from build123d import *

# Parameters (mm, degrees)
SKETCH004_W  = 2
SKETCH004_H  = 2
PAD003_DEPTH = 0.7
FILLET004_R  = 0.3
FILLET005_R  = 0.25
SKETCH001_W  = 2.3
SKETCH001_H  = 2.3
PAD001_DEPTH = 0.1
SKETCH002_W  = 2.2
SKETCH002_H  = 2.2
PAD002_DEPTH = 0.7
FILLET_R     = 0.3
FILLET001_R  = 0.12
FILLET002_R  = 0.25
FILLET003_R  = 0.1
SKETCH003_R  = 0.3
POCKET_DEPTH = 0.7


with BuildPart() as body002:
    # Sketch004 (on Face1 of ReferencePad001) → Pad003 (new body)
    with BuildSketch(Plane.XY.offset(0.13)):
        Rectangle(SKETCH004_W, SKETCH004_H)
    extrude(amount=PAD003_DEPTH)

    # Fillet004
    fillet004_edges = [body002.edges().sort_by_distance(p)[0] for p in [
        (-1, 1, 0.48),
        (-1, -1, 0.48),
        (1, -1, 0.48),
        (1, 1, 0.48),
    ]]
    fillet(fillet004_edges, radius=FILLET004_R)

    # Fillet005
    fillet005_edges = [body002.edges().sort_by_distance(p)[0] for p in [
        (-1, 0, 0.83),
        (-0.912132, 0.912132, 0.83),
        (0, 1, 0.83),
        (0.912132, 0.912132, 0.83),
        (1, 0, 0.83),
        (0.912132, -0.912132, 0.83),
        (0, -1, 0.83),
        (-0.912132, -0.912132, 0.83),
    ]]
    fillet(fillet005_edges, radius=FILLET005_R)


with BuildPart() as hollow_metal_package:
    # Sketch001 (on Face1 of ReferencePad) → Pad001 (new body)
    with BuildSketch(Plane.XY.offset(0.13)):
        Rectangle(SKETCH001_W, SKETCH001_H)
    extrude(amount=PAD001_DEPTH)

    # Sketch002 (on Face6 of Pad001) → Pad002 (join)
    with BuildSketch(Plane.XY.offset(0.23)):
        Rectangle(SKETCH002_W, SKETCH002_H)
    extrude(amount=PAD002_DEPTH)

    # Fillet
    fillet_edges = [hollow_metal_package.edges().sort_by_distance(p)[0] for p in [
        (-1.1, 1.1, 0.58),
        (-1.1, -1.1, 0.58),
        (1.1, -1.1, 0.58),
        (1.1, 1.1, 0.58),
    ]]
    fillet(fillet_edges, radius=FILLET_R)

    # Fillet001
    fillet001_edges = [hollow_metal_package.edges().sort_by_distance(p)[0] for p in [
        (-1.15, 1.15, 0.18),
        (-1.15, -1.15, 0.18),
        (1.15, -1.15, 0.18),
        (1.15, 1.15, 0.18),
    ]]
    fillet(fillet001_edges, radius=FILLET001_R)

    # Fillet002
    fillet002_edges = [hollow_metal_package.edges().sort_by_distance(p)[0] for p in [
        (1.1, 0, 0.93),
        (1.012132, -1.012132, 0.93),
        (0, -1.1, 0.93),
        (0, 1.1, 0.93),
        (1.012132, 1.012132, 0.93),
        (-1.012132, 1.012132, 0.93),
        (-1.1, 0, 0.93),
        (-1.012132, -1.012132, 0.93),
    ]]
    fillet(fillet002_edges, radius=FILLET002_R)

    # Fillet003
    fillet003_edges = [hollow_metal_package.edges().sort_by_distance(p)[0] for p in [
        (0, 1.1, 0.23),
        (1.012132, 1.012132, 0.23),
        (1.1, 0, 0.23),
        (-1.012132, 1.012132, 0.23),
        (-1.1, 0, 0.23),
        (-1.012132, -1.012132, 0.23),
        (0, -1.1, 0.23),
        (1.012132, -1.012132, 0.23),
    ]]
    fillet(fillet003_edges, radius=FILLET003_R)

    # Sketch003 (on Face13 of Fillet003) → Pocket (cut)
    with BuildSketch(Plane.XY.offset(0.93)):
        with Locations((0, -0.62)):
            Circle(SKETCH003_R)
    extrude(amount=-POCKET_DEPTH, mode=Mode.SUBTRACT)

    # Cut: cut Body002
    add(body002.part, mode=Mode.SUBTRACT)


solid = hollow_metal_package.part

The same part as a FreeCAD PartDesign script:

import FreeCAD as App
import Part
import Sketcher

V = App.Vector


def edges_at(feature, points):
    """Names of the edges that pass closest to the given points."""
    edges = feature.Shape.Edges
    near = lambda p: min(range(len(edges)), key=lambda i: edges[i].distToShape(Part.Vertex(*p))[0])
    return sorted({f"Edge{near(p) + 1}" for p in points})


def add_polygon(sketch, points):
    """Adds a closed chain of lines whose ends are joined by coincident constraints."""
    first, n = sketch.GeometryCount, len(points)
    for a, b in zip(points, points[1:] + points[:1]):
        sketch.addGeometry(Part.LineSegment(App.Vector(*a, 0), App.Vector(*b, 0)), False)
    for i in range(n):
        sketch.addConstraint(Sketcher.Constraint("Coincident", first + i, 2, first + (i + 1) % n, 1))

doc = App.newDocument("Part")
params = doc.addObject("Spreadsheet::Sheet", "Params")
for row, (alias, value) in enumerate([
    ("sketch1_width", "2 mm"),
    ("pad1_length", "0.7 mm"),
    ("fillet_radius", "0.3 mm"),
    ("fillet2_radius", "0.25 mm"),
    ("sketch2_width", "2.3 mm"),
    ("pad2_length", "0.1 mm"),
    ("sketch3_width", "2.2 mm"),
    ("pad3_length", "0.7 mm"),
    ("fillet3_radius", "0.3 mm"),
    ("fillet4_radius", "0.12 mm"),
    ("fillet5_radius", "0.25 mm"),
    ("fillet6_radius", "0.1 mm"),
    ("sketch4_diameter", "0.6 mm"),
    ("pocket1_length", "0.7 mm"),
], start=1):
    params.set(f"A{row}", alias)
    params.set(f"B{row}", "=" + value)
    params.setAlias(f"B{row}", alias)

body = doc.addObject("PartDesign::Body", "Body")

# Sketch on XY plane
sketch1 = doc.addObject("Sketcher::SketchObject", "Sketch")
body.addObject(sketch1)
sketch1.AttachmentSupport = (doc.XY_Plane, [""])
sketch1.MapMode = "FlatFace"
sketch1.AttachmentOffset = App.Placement(V(0, 0, 0.13), App.Rotation())
add_polygon(sketch1, [(-1, 1), (-1, -1), (1, -1), (1, 1)])  # lines 0-3
sketch1.addConstraint([
    Sketcher.Constraint("Vertical", 0),
    Sketcher.Constraint("Horizontal", 1),
    Sketcher.Constraint("Vertical", 2),
    Sketcher.Constraint("Horizontal", 3),
    Sketcher.Constraint("Symmetric", 0, 2, 2, 2, -1, 1),
    Sketcher.Constraint("Equal", 3, 0),
    Sketcher.Constraint("DistanceX", 1, 1, 1, 2, 2.0),
])
sketch1.setExpression("Constraints[10]", "Params.sketch1_width")
pad1 = doc.addObject("PartDesign::Pad", "Pad")
body.addObject(pad1)
pad1.Profile = sketch1
pad1.setExpression("Length", "Params.pad1_length")
doc.recompute()

fillet = doc.addObject("PartDesign::Fillet", "Fillet")
body.addObject(fillet)
fillet.Base = (pad1, edges_at(pad1, [
    (-1, 1, 0.48),
    (-1, -1, 0.48),
    (1, -1, 0.48),
    (1, 1, 0.48),
]))
fillet.setExpression("Radius", "Params.fillet_radius")
doc.recompute()

fillet2 = doc.addObject("PartDesign::Fillet", "Fillet001")
body.addObject(fillet2)
fillet2.Base = (fillet, edges_at(fillet, [
    (-1, 0, 0.83),
    (-0.912, 0.912, 0.83),
    (0, 1, 0.83),
    (0.912, 0.912, 0.83),
    (1, 0, 0.83),
    (0.912, -0.912, 0.83),
    (0, -1, 0.83),
    (-0.912, -0.912, 0.83),
]))
fillet2.setExpression("Radius", "Params.fillet2_radius")
body2 = doc.addObject("PartDesign::Body", "Body001")

# Sketch on XY plane
sketch2 = doc.addObject("Sketcher::SketchObject", "Sketch001")
body2.addObject(sketch2)
sketch2.AttachmentSupport = (doc.getObject("XY_Plane001"), [""])
sketch2.MapMode = "FlatFace"
sketch2.AttachmentOffset = App.Placement(V(0, 0, 0.13), App.Rotation())
add_polygon(sketch2, [(-1.1, 1.1), (-1.1, -1.1), (1.1, -1.1), (1.1, 1.1)])  # lines 0-3
sketch2.addConstraint([
    Sketcher.Constraint("Vertical", 0),
    Sketcher.Constraint("Horizontal", 1),
    Sketcher.Constraint("Vertical", 2),
    Sketcher.Constraint("Horizontal", 3),
    Sketcher.Constraint("Symmetric", 0, 2, 2, 2, -1, 1),
    Sketcher.Constraint("Equal", 3, 0),
    Sketcher.Constraint("DistanceX", 1, 1, 1, 2, 2.3),
])
sketch2.setExpression("Constraints[10]", "Params.sketch2_width")
pad2 = doc.addObject("PartDesign::Pad", "Pad001")
body2.addObject(pad2)
pad2.Profile = sketch2
pad2.setExpression("Length", "Params.pad2_length")

# Sketch on XY plane
sketch3 = doc.addObject("Sketcher::SketchObject", "Sketch002")
body2.addObject(sketch3)
sketch3.AttachmentSupport = (doc.getObject("XY_Plane001"), [""])
sketch3.MapMode = "FlatFace"
sketch3.AttachmentOffset = App.Placement(V(0, 0, 0.23), App.Rotation())
add_polygon(sketch3, [(-1.1, 1.1), (-1.1, -1.1), (1.1, -1.1), (1.1, 1.1)])  # lines 0-3
sketch3.addConstraint([
    Sketcher.Constraint("Vertical", 0),
    Sketcher.Constraint("Horizontal", 1),
    Sketcher.Constraint("Vertical", 2),
    Sketcher.Constraint("Horizontal", 3),
    Sketcher.Constraint("Symmetric", 0, 2, 2, 2, -1, 1),
    Sketcher.Constraint("Equal", 3, 0),
    Sketcher.Constraint("DistanceX", 1, 1, 1, 2, 2.2),
])
sketch3.setExpression("Constraints[10]", "Params.sketch3_width")
pad3 = doc.addObject("PartDesign::Pad", "Pad002")
body2.addObject(pad3)
pad3.Profile = sketch3
pad3.setExpression("Length", "Params.pad3_length")
doc.recompute()

fillet3 = doc.addObject("PartDesign::Fillet", "Fillet002")
body2.addObject(fillet3)
fillet3.Base = (pad3, edges_at(pad3, [
    (-1.1, 1.1, 0.58),
    (-1.1, -1.1, 0.58),
    (1.1, -1.1, 0.58),
    (1.1, 1.1, 0.58),
]))
fillet3.setExpression("Radius", "Params.fillet3_radius")
doc.recompute()

fillet4 = doc.addObject("PartDesign::Fillet", "Fillet003")
body2.addObject(fillet4)
fillet4.Base = (fillet3, edges_at(fillet3, [
    (-1.15, 1.15, 0.18),
    (-1.15, -1.15, 0.18),
    (1.15, -1.15, 0.18),
    (1.15, 1.15, 0.18),
]))
fillet4.setExpression("Radius", "Params.fillet4_radius")
doc.recompute()

fillet5 = doc.addObject("PartDesign::Fillet", "Fillet004")
body2.addObject(fillet5)
fillet5.Base = (fillet4, edges_at(fillet4, [
    (1.1, 0, 0.93),
    (1.012, -1.012, 0.93),
    (0, -1.1, 0.93),
    (0, 1.1, 0.93),
    (1.012, 1.012, 0.93),
    (-1.012, 1.012, 0.93),
    (-1.1, 0, 0.93),
    (-1.012, -1.012, 0.93),
]))
fillet5.setExpression("Radius", "Params.fillet5_radius")
doc.recompute()

fillet6 = doc.addObject("PartDesign::Fillet", "Fillet005")
body2.addObject(fillet6)
fillet6.Base = (fillet5, edges_at(fillet5, [
    (0, 1.1, 0.23),
    (1.012, 1.012, 0.23),
    (1.1, 0, 0.23),
    (-1.012, 1.012, 0.23),
    (-1.1, 0, 0.23),
    (-1.012, -1.012, 0.23),
    (0, -1.1, 0.23),
    (1.012, -1.012, 0.23),
]))
fillet6.setExpression("Radius", "Params.fillet6_radius")

# Sketch on XY plane
sketch4 = doc.addObject("Sketcher::SketchObject", "Sketch003")
body2.addObject(sketch4)
sketch4.AttachmentSupport = (doc.getObject("XY_Plane001"), [""])
sketch4.MapMode = "FlatFace"
sketch4.AttachmentOffset = App.Placement(V(0, 0, 0.93), App.Rotation())
sketch4.addGeometry(Part.Circle(V(0, -0.62, 0), V(0, 0, 1), 0.3), False)
sketch4.addConstraint([
    Sketcher.Constraint("PointOnObject", 0, 3, -2),
    Sketcher.Constraint("Diameter", 0, 0.6),
    Sketcher.Constraint("DistanceY", 0, 3, -1, 1, 0.62),
])
sketch4.setExpression("Constraints[1]", "Params.sketch4_diameter")
pocket1 = doc.addObject("PartDesign::Pocket", "Pocket")
body2.addObject(pocket1)
pocket1.Profile = sketch4
pocket1.setExpression("Length", "Params.pocket1_length")
doc.recompute()

boolean = doc.addObject("PartDesign::Boolean", "Boolean")
body2.addObject(boolean)
boolean.Type = "Cut"
boolean.addObjects([body])

doc.recompute()
